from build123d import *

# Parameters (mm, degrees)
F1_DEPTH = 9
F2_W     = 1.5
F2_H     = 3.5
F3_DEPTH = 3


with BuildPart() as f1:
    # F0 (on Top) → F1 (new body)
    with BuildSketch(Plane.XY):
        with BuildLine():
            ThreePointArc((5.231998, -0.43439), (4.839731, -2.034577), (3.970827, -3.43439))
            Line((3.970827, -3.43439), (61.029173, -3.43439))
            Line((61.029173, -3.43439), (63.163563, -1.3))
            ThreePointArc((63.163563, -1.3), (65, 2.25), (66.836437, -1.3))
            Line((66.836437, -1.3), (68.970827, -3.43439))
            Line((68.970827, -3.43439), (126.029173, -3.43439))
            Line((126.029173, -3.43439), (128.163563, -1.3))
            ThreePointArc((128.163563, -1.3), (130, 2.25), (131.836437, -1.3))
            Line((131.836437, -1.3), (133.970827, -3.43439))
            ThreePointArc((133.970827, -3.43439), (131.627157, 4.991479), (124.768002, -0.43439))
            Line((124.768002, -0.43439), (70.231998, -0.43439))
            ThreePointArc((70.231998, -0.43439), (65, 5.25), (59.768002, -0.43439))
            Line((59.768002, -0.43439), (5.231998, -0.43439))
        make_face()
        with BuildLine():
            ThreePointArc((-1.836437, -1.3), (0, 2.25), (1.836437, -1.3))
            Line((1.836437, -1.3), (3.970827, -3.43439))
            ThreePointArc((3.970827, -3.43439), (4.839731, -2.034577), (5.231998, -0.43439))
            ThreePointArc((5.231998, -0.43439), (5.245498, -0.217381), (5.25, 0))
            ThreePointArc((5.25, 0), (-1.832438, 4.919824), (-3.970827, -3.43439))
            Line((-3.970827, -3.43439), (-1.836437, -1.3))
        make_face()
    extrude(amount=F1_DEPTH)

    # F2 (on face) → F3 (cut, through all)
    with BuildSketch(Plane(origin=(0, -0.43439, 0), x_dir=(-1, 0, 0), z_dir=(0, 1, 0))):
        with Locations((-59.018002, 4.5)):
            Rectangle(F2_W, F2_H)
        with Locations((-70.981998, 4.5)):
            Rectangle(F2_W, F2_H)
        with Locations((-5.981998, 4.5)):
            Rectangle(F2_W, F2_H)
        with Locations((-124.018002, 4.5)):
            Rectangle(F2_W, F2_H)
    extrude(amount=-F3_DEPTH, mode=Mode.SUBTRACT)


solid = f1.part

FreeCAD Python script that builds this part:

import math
import FreeCAD as App
import Part
import Sketcher

doc = App.newDocument("Part")
body = doc.addObject("PartDesign::Body", "Body")

# Sketch on XY plane
sketch1 = doc.addObject("Sketcher::SketchObject", "Sketch")
body.addObject(sketch1)
sketch1.AttachmentSupport = (doc.XY_Plane, [""])
sketch1.MapMode = "FlatFace"
sketch1.addGeometry([
    Part.LineSegment(App.Vector(3.97, -3.43, 0), App.Vector(61.03, -3.43, 0)),  # 0
    Part.LineSegment(App.Vector(61.03, -3.43, 0), App.Vector(63.16, -1.3, 0)),  # 1
    Part.ArcOfCircle(Part.Circle(App.Vector(65, 0, 0), App.Vector(0, 0, 1), 2.25), math.radians(-35), math.radians(215)),  # 2
    Part.LineSegment(App.Vector(66.84, -1.3, 0), App.Vector(68.97, -3.43, 0)),  # 3
    Part.LineSegment(App.Vector(68.97, -3.43, 0), App.Vector(126.03, -3.43, 0)),  # 4
    Part.LineSegment(App.Vector(126.03, -3.43, 0), App.Vector(128.16, -1.3, 0)),  # 5
    Part.ArcOfCircle(Part.Circle(App.Vector(130, 0, 0), App.Vector(0, 0, 1), 2.25), math.radians(-35), math.radians(215)),  # 6
    Part.LineSegment(App.Vector(131.84, -1.3, 0), App.Vector(133.97, -3.43, 0)),  # 7
    Part.ArcOfCircle(Part.Circle(App.Vector(130, 0, 0), App.Vector(0, 0, 1), 5.25), math.radians(-41), math.radians(185)),  # 8
    Part.LineSegment(App.Vector(124.77, -0.43, 0), App.Vector(70.23, -0.43, 0)),  # 9
    Part.ArcOfCircle(Part.Circle(App.Vector(65, 0, 0), App.Vector(0, 0, 1), 5.25), math.radians(-5), math.radians(185)),  # 10
    Part.LineSegment(App.Vector(59.77, -0.43, 0), App.Vector(5.23, -0.43, 0)),  # 11
    Part.ArcOfCircle(Part.Circle(App.Vector(0, 0, 0), App.Vector(0, 0, 1), 5.25), math.radians(-4.75), math.radians(0)),  # 12
    Part.ArcOfCircle(Part.Circle(App.Vector(0, 0, 0), App.Vector(0, 0, 1), 5.25), math.radians(0), math.radians(221)),  # 13
    Part.LineSegment(App.Vector(-3.97, -3.43, 0), App.Vector(-1.84, -1.3, 0)),  # 14
    Part.ArcOfCircle(Part.Circle(App.Vector(0, 0, 0), App.Vector(0, 0, 1), 2.25), math.radians(-35), math.radians(215)),  # 15
    Part.LineSegment(App.Vector(1.84, -1.3, 0), App.Vector(3.97, -3.43, 0)),  # 16
], False)
sketch1.addConstraint([
    Sketcher.Constraint("Coincident", 0, 2, 1, 1),
    Sketcher.Constraint("Coincident", 1, 2, 2, 2),
    Sketcher.Constraint("Coincident", 2, 1, 3, 1),
    Sketcher.Constraint("Coincident", 3, 2, 4, 1),
    Sketcher.Constraint("Coincident", 4, 2, 5, 1),
    Sketcher.Constraint("Coincident", 5, 2, 6, 2),
    Sketcher.Constraint("Coincident", 6, 1, 7, 1),
    Sketcher.Constraint("Coincident", 7, 2, 8, 1),
    Sketcher.Constraint("Coincident", 8, 2, 9, 1),
    Sketcher.Constraint("Coincident", 9, 2, 10, 1),
    Sketcher.Constraint("Coincident", 10, 2, 11, 1),
    Sketcher.Constraint("Coincident", 11, 2, 12, 1),
    Sketcher.Constraint("Coincident", 12, 2, 13, 1),
    Sketcher.Constraint("Coincident", 13, 2, 14, 1),
    Sketcher.Constraint("Coincident", 14, 2, 15, 2),
    Sketcher.Constraint("Coincident", 15, 1, 16, 1),
    Sketcher.Constraint("Coincident", 16, 2, 0, 1),
    Sketcher.Constraint("Horizontal", 0),
    Sketcher.Constraint("Horizontal", 4),
    Sketcher.Constraint("Horizontal", 9),
    Sketcher.Constraint("Horizontal", 11),
    Sketcher.Constraint("Coincident", 13, 3, -1, 1),
    Sketcher.Constraint("Coincident", 15, 3, -1, 1),
    Sketcher.Constraint("Coincident", 8, 3, 6, 3),
    Sketcher.Constraint("Coincident", 10, 3, 2, 3),
    Sketcher.Constraint("Equal", 2, 6),
    Sketcher.Constraint("Equal", 8, 10),
    Sketcher.Constraint("Equal", 10, 13),
    Sketcher.Constraint("Equal", 6, 15),
    Sketcher.Constraint("Symmetric", 13, 2, 16, 2, -2),
    Sketcher.Constraint("PointOnObject", 2, 3, -1),
    Sketcher.Constraint("PointOnObject", 6, 3, -1),
    Sketcher.Constraint("PointOnObject", 12, 2, -1),
    Sketcher.Constraint("Perpendicular", 1, 3),
    Sketcher.Constraint("Perpendicular", 3, 5),
    Sketcher.Constraint("Perpendicular", 5, 7),
    Sketcher.Constraint("Perpendicular", 7, 14),
    Sketcher.Constraint("Perpendicular", 14, 16),
    Sketcher.Constraint("Horizontal", 1, 2, 2, 1),
    Sketcher.Constraint("Horizontal", 0, 2, 3, 2),
    Sketcher.Constraint("Horizontal", 2, 1, 5, 2),
    Sketcher.Constraint("Horizontal", 5, 2, 6, 1),
    Sketcher.Constraint("Horizontal", 4, 2, 7, 2),
    Sketcher.Constraint("Horizontal", 9, 2, 10, 2),
    Sketcher.Constraint("Horizontal", 6, 1, 14, 2),
    Sketcher.Constraint("Equal", 0, 4),
    Sketcher.Constraint("Equal", 9, 11),
    Sketcher.Constraint("Radius", 2, 2.25),
    Sketcher.Constraint("Radius", 8, 5.25),
    Sketcher.Constraint("DistanceX", -1, 1, 2, 3, 65.0),
    Sketcher.Constraint("DistanceY", 4, 2, 8, 2, 3.0),
    Sketcher.Constraint("DistanceY", 1, 2, -1, 1, 1.3),
    Sketcher.Constraint("Radius", 12, 5.249457),
])
pad1 = doc.addObject("PartDesign::Pad", "Pad")
body.addObject(pad1)
pad1.Profile = sketch1
pad1.Length = 9

# Sketch on XZ plane
sketch2 = doc.addObject("Sketcher::SketchObject", "Sketch001")
body.addObject(sketch2)
sketch2.AttachmentSupport = (doc.XZ_Plane, [""])
sketch2.MapMode = "FlatFace"
sketch2.AttachmentOffset = App.Placement(App.Vector(0, 0, 0.43439), App.Rotation())
sketch2.addGeometry([
    Part.LineSegment(App.Vector(59.8, 6.2, 0), App.Vector(59.8, 2.8, 0)),  # 0
    Part.LineSegment(App.Vector(59.8, 2.8, 0), App.Vector(58.3, 2.8, 0)),  # 1
    Part.LineSegment(App.Vector(58.3, 2.8, 0), App.Vector(58.3, 6.2, 0)),  # 2
    Part.LineSegment(App.Vector(58.3, 6.2, 0), App.Vector(59.8, 6.2, 0)),  # 3
    Part.LineSegment(App.Vector(71.7, 6.2, 0), App.Vector(71.7, 2.8, 0)),  # 4
    Part.LineSegment(App.Vector(71.7, 2.8, 0), App.Vector(70.2, 2.8, 0)),  # 5
    Part.LineSegment(App.Vector(70.2, 2.8, 0), App.Vector(70.2, 6.2, 0)),  # 6
    Part.LineSegment(App.Vector(70.2, 6.2, 0), App.Vector(71.7, 6.2, 0)),  # 7
    Part.LineSegment(App.Vector(6.7, 6.2, 0), App.Vector(6.7, 2.8, 0)),  # 8
    Part.LineSegment(App.Vector(6.7, 2.8, 0), App.Vector(5.2, 2.8, 0)),  # 9
    Part.LineSegment(App.Vector(5.2, 2.8, 0), App.Vector(5.2, 6.2, 0)),  # 10
    Part.LineSegment(App.Vector(5.2, 6.2, 0), App.Vector(6.7, 6.2, 0)),  # 11
    Part.LineSegment(App.Vector(124.8, 6.2, 0), App.Vector(124.8, 2.8, 0)),  # 12
    Part.LineSegment(App.Vector(124.8, 2.8, 0), App.Vector(123.3, 2.8, 0)),  # 13
    Part.LineSegment(App.Vector(123.3, 2.8, 0), App.Vector(123.3, 6.2, 0)),  # 14
    Part.LineSegment(App.Vector(123.3, 6.2, 0), App.Vector(124.8, 6.2, 0)),  # 15
], False)
sketch2.addConstraint([
    Sketcher.Constraint("Coincident", 0, 2, 1, 1),
    Sketcher.Constraint("Coincident", 1, 2, 2, 1),
    Sketcher.Constraint("Coincident", 2, 2, 3, 1),
    Sketcher.Constraint("Coincident", 3, 2, 0, 1),
    Sketcher.Constraint("Coincident", 4, 2, 5, 1),
    Sketcher.Constraint("Coincident", 5, 2, 6, 1),
    Sketcher.Constraint("Coincident", 6, 2, 7, 1),
    Sketcher.Constraint("Coincident", 7, 2, 4, 1),
    Sketcher.Constraint("Coincident", 8, 2, 9, 1),
    Sketcher.Constraint("Coincident", 9, 2, 10, 1),
    Sketcher.Constraint("Coincident", 10, 2, 11, 1),
    Sketcher.Constraint("Coincident", 11, 2, 8, 1),
    Sketcher.Constraint("Coincident", 12, 2, 13, 1),
    Sketcher.Constraint("Coincident", 13, 2, 14, 1),
    Sketcher.Constraint("Coincident", 14, 2, 15, 1),
    Sketcher.Constraint("Coincident", 15, 2, 12, 1),
    Sketcher.Constraint("Vertical", 0),
    Sketcher.Constraint("Horizontal", 1),
    Sketcher.Constraint("Vertical", 2),
    Sketcher.Constraint("Horizontal", 3),
    Sketcher.Constraint("Vertical", 4),
    Sketcher.Constraint("Horizontal", 5),
    Sketcher.Constraint("Vertical", 6),
    Sketcher.Constraint("Horizontal", 7),
    Sketcher.Constraint("Vertical", 8),
    Sketcher.Constraint("Horizontal", 9),
    Sketcher.Constraint("Vertical", 10),
    Sketcher.Constraint("Horizontal", 11),
    Sketcher.Constraint("Vertical", 12),
    Sketcher.Constraint("Horizontal", 13),
    Sketcher.Constraint("Vertical", 14),
    Sketcher.Constraint("Horizontal", 15),
    Sketcher.Constraint("Horizontal", 1, 2, 4, 2),
    Sketcher.Constraint("Horizontal", 3, 2, 6, 2),
    Sketcher.Constraint("Horizontal", 5, 2, 8, 2),
    Sketcher.Constraint("Horizontal", 7, 2, 10, 2),
    Sketcher.Constraint("Horizontal", 9, 2, 12, 2),
    Sketcher.Constraint("Horizontal", 11, 2, 14, 2),
    Sketcher.Constraint("Equal", 3, 5),
    Sketcher.Constraint("Equal", 7, 9),
    Sketcher.Constraint("Equal", 11, 13),
    Sketcher.Constraint("DistanceX", 1, 2, 1, 1, 1.5),
    Sketcher.Constraint("DistanceY", 0, 2, 0, 1, 3.5),
    Sketcher.Constraint("DistanceX", 0, 2, 12, 2, 65.0),
    Sketcher.Constraint("DistanceX", 8, 2, 5, 2, 63.5),
    Sketcher.Constraint("DistanceY", -1, 1, 0, 2, 2.75),
    Sketcher.Constraint("DistanceX", -1, 1, 4, 2, 71.731998),
    Sketcher.Constraint("DistanceX", -1, 1, 12, 2, 124.768002),
])
pocket1 = doc.addObject("PartDesign::Pocket", "Pocket")
body.addObject(pocket1)
pocket1.Profile = sketch2
pocket1.Type = "ThroughAll"
pocket1.Reversed = True

doc.recompute()
